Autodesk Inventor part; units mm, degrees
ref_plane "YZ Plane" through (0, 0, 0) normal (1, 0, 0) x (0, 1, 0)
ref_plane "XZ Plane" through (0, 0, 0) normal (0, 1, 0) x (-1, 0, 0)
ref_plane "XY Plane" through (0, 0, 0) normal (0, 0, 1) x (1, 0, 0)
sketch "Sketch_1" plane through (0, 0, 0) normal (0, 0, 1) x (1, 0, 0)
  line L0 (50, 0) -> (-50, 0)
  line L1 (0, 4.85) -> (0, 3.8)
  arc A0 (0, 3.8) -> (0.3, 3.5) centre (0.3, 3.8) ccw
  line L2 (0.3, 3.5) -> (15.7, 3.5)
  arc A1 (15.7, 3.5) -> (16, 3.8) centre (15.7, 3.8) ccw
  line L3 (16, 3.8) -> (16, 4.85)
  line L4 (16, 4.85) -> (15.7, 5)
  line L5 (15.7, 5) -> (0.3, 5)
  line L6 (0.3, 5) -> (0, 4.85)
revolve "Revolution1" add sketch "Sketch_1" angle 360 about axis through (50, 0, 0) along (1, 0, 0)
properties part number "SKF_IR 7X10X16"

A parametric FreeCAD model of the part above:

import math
import FreeCAD as App
import Part
import Sketcher

doc = App.newDocument("Part")
body = doc.addObject("PartDesign::Body", "Body")

sketch1 = body.newObject("Sketcher::SketchObject", "Sketch")
sketch1.AttachmentSupport = (doc.getObject("XY_Plane"), [""])
sketch1.MapMode = "FlatFace"
sketch1.addGeometry(Part.LineSegment(App.Vector(0.3, 5, 0), App.Vector(0, 4.85, 0)), False)
sketch1.addGeometry(Part.LineSegment(App.Vector(0, 4.85, 0), App.Vector(0, 3.8, 0)), False)
sketch1.addGeometry(Part.ArcOfCircle(Part.Circle(App.Vector(0.3, 3.8, 0), App.Vector(0, 0, 1), 0.3), math.radians(180), math.radians(270)), False)
sketch1.addGeometry(Part.LineSegment(App.Vector(0.3, 3.5, 0), App.Vector(15.7, 3.5, 0)), False)
sketch1.addGeometry(Part.ArcOfCircle(Part.Circle(App.Vector(15.7, 3.8, 0), App.Vector(0, 0, 1), 0.3), math.radians(-90), math.radians(0)), False)
sketch1.addGeometry(Part.LineSegment(App.Vector(16, 3.8, 0), App.Vector(16, 4.85, 0)), False)
sketch1.addGeometry(Part.LineSegment(App.Vector(16, 4.85, 0), App.Vector(15.7, 5, 0)), False)
sketch1.addGeometry(Part.LineSegment(App.Vector(15.7, 5, 0), App.Vector(0.3, 5, 0)), False)
sketch1.addConstraint(Sketcher.Constraint("Coincident", 0, 2, 1, 1))
sketch1.addConstraint(Sketcher.Constraint("Tangent", 1, 2, 2, 1))
sketch1.addConstraint(Sketcher.Constraint("Tangent", 2, 2, 3, 1))
sketch1.addConstraint(Sketcher.Constraint("Tangent", 3, 2, 4, 1))
sketch1.addConstraint(Sketcher.Constraint("Tangent", 4, 2, 5, 1))
sketch1.addConstraint(Sketcher.Constraint("Coincident", 5, 2, 6, 1))
sketch1.addConstraint(Sketcher.Constraint("Coincident", 6, 2, 7, 1))
sketch1.addConstraint(Sketcher.Constraint("Coincident", 7, 2, 0, 1))
sketch1.addConstraint(Sketcher.Constraint("Vertical", 1))
sketch1.addConstraint(Sketcher.Constraint("Horizontal", 3))
sketch1.addConstraint(Sketcher.Constraint("Vertical", 5))
sketch1.addConstraint(Sketcher.Constraint("Horizontal", 7))
sketch1.addConstraint(Sketcher.Constraint("Equal", 2, 4))
sketch1.addConstraint(Sketcher.Constraint("PointOnObject", 0, 2, -2))
sketch1.addConstraint(Sketcher.Constraint("Horizontal", 0, 2, 5, 2))
sketch1.addConstraint(Sketcher.Constraint("Vertical", 3, 2, 6, 2))
sketch1.addConstraint(Sketcher.Constraint("Vertical", 2, 2, 7, 2))
sketch1.addConstraint(Sketcher.Constraint("Radius", 2, 0.3))
sketch1.addConstraint(Sketcher.Constraint("DistanceX", 3, 1, 3, 2, 15.4))
sketch1.addConstraint(Sketcher.Constraint("DistanceY", -1, 1, 6, 2, 5.0))
sketch1.addConstraint(Sketcher.Constraint("DistanceY", 1, 2, 1, 1, 1.05))
sketch1.addConstraint(Sketcher.Constraint("DistanceY", -1, 1, 2, 3, 3.8))
revolution = body.newObject("PartDesign::Revolution", "Revolution")
revolution.Profile = sketch1
revolution.ReferenceAxis = (sketch1, ["H_Axis"])
revolution.Angle = 360

doc.recompute()
